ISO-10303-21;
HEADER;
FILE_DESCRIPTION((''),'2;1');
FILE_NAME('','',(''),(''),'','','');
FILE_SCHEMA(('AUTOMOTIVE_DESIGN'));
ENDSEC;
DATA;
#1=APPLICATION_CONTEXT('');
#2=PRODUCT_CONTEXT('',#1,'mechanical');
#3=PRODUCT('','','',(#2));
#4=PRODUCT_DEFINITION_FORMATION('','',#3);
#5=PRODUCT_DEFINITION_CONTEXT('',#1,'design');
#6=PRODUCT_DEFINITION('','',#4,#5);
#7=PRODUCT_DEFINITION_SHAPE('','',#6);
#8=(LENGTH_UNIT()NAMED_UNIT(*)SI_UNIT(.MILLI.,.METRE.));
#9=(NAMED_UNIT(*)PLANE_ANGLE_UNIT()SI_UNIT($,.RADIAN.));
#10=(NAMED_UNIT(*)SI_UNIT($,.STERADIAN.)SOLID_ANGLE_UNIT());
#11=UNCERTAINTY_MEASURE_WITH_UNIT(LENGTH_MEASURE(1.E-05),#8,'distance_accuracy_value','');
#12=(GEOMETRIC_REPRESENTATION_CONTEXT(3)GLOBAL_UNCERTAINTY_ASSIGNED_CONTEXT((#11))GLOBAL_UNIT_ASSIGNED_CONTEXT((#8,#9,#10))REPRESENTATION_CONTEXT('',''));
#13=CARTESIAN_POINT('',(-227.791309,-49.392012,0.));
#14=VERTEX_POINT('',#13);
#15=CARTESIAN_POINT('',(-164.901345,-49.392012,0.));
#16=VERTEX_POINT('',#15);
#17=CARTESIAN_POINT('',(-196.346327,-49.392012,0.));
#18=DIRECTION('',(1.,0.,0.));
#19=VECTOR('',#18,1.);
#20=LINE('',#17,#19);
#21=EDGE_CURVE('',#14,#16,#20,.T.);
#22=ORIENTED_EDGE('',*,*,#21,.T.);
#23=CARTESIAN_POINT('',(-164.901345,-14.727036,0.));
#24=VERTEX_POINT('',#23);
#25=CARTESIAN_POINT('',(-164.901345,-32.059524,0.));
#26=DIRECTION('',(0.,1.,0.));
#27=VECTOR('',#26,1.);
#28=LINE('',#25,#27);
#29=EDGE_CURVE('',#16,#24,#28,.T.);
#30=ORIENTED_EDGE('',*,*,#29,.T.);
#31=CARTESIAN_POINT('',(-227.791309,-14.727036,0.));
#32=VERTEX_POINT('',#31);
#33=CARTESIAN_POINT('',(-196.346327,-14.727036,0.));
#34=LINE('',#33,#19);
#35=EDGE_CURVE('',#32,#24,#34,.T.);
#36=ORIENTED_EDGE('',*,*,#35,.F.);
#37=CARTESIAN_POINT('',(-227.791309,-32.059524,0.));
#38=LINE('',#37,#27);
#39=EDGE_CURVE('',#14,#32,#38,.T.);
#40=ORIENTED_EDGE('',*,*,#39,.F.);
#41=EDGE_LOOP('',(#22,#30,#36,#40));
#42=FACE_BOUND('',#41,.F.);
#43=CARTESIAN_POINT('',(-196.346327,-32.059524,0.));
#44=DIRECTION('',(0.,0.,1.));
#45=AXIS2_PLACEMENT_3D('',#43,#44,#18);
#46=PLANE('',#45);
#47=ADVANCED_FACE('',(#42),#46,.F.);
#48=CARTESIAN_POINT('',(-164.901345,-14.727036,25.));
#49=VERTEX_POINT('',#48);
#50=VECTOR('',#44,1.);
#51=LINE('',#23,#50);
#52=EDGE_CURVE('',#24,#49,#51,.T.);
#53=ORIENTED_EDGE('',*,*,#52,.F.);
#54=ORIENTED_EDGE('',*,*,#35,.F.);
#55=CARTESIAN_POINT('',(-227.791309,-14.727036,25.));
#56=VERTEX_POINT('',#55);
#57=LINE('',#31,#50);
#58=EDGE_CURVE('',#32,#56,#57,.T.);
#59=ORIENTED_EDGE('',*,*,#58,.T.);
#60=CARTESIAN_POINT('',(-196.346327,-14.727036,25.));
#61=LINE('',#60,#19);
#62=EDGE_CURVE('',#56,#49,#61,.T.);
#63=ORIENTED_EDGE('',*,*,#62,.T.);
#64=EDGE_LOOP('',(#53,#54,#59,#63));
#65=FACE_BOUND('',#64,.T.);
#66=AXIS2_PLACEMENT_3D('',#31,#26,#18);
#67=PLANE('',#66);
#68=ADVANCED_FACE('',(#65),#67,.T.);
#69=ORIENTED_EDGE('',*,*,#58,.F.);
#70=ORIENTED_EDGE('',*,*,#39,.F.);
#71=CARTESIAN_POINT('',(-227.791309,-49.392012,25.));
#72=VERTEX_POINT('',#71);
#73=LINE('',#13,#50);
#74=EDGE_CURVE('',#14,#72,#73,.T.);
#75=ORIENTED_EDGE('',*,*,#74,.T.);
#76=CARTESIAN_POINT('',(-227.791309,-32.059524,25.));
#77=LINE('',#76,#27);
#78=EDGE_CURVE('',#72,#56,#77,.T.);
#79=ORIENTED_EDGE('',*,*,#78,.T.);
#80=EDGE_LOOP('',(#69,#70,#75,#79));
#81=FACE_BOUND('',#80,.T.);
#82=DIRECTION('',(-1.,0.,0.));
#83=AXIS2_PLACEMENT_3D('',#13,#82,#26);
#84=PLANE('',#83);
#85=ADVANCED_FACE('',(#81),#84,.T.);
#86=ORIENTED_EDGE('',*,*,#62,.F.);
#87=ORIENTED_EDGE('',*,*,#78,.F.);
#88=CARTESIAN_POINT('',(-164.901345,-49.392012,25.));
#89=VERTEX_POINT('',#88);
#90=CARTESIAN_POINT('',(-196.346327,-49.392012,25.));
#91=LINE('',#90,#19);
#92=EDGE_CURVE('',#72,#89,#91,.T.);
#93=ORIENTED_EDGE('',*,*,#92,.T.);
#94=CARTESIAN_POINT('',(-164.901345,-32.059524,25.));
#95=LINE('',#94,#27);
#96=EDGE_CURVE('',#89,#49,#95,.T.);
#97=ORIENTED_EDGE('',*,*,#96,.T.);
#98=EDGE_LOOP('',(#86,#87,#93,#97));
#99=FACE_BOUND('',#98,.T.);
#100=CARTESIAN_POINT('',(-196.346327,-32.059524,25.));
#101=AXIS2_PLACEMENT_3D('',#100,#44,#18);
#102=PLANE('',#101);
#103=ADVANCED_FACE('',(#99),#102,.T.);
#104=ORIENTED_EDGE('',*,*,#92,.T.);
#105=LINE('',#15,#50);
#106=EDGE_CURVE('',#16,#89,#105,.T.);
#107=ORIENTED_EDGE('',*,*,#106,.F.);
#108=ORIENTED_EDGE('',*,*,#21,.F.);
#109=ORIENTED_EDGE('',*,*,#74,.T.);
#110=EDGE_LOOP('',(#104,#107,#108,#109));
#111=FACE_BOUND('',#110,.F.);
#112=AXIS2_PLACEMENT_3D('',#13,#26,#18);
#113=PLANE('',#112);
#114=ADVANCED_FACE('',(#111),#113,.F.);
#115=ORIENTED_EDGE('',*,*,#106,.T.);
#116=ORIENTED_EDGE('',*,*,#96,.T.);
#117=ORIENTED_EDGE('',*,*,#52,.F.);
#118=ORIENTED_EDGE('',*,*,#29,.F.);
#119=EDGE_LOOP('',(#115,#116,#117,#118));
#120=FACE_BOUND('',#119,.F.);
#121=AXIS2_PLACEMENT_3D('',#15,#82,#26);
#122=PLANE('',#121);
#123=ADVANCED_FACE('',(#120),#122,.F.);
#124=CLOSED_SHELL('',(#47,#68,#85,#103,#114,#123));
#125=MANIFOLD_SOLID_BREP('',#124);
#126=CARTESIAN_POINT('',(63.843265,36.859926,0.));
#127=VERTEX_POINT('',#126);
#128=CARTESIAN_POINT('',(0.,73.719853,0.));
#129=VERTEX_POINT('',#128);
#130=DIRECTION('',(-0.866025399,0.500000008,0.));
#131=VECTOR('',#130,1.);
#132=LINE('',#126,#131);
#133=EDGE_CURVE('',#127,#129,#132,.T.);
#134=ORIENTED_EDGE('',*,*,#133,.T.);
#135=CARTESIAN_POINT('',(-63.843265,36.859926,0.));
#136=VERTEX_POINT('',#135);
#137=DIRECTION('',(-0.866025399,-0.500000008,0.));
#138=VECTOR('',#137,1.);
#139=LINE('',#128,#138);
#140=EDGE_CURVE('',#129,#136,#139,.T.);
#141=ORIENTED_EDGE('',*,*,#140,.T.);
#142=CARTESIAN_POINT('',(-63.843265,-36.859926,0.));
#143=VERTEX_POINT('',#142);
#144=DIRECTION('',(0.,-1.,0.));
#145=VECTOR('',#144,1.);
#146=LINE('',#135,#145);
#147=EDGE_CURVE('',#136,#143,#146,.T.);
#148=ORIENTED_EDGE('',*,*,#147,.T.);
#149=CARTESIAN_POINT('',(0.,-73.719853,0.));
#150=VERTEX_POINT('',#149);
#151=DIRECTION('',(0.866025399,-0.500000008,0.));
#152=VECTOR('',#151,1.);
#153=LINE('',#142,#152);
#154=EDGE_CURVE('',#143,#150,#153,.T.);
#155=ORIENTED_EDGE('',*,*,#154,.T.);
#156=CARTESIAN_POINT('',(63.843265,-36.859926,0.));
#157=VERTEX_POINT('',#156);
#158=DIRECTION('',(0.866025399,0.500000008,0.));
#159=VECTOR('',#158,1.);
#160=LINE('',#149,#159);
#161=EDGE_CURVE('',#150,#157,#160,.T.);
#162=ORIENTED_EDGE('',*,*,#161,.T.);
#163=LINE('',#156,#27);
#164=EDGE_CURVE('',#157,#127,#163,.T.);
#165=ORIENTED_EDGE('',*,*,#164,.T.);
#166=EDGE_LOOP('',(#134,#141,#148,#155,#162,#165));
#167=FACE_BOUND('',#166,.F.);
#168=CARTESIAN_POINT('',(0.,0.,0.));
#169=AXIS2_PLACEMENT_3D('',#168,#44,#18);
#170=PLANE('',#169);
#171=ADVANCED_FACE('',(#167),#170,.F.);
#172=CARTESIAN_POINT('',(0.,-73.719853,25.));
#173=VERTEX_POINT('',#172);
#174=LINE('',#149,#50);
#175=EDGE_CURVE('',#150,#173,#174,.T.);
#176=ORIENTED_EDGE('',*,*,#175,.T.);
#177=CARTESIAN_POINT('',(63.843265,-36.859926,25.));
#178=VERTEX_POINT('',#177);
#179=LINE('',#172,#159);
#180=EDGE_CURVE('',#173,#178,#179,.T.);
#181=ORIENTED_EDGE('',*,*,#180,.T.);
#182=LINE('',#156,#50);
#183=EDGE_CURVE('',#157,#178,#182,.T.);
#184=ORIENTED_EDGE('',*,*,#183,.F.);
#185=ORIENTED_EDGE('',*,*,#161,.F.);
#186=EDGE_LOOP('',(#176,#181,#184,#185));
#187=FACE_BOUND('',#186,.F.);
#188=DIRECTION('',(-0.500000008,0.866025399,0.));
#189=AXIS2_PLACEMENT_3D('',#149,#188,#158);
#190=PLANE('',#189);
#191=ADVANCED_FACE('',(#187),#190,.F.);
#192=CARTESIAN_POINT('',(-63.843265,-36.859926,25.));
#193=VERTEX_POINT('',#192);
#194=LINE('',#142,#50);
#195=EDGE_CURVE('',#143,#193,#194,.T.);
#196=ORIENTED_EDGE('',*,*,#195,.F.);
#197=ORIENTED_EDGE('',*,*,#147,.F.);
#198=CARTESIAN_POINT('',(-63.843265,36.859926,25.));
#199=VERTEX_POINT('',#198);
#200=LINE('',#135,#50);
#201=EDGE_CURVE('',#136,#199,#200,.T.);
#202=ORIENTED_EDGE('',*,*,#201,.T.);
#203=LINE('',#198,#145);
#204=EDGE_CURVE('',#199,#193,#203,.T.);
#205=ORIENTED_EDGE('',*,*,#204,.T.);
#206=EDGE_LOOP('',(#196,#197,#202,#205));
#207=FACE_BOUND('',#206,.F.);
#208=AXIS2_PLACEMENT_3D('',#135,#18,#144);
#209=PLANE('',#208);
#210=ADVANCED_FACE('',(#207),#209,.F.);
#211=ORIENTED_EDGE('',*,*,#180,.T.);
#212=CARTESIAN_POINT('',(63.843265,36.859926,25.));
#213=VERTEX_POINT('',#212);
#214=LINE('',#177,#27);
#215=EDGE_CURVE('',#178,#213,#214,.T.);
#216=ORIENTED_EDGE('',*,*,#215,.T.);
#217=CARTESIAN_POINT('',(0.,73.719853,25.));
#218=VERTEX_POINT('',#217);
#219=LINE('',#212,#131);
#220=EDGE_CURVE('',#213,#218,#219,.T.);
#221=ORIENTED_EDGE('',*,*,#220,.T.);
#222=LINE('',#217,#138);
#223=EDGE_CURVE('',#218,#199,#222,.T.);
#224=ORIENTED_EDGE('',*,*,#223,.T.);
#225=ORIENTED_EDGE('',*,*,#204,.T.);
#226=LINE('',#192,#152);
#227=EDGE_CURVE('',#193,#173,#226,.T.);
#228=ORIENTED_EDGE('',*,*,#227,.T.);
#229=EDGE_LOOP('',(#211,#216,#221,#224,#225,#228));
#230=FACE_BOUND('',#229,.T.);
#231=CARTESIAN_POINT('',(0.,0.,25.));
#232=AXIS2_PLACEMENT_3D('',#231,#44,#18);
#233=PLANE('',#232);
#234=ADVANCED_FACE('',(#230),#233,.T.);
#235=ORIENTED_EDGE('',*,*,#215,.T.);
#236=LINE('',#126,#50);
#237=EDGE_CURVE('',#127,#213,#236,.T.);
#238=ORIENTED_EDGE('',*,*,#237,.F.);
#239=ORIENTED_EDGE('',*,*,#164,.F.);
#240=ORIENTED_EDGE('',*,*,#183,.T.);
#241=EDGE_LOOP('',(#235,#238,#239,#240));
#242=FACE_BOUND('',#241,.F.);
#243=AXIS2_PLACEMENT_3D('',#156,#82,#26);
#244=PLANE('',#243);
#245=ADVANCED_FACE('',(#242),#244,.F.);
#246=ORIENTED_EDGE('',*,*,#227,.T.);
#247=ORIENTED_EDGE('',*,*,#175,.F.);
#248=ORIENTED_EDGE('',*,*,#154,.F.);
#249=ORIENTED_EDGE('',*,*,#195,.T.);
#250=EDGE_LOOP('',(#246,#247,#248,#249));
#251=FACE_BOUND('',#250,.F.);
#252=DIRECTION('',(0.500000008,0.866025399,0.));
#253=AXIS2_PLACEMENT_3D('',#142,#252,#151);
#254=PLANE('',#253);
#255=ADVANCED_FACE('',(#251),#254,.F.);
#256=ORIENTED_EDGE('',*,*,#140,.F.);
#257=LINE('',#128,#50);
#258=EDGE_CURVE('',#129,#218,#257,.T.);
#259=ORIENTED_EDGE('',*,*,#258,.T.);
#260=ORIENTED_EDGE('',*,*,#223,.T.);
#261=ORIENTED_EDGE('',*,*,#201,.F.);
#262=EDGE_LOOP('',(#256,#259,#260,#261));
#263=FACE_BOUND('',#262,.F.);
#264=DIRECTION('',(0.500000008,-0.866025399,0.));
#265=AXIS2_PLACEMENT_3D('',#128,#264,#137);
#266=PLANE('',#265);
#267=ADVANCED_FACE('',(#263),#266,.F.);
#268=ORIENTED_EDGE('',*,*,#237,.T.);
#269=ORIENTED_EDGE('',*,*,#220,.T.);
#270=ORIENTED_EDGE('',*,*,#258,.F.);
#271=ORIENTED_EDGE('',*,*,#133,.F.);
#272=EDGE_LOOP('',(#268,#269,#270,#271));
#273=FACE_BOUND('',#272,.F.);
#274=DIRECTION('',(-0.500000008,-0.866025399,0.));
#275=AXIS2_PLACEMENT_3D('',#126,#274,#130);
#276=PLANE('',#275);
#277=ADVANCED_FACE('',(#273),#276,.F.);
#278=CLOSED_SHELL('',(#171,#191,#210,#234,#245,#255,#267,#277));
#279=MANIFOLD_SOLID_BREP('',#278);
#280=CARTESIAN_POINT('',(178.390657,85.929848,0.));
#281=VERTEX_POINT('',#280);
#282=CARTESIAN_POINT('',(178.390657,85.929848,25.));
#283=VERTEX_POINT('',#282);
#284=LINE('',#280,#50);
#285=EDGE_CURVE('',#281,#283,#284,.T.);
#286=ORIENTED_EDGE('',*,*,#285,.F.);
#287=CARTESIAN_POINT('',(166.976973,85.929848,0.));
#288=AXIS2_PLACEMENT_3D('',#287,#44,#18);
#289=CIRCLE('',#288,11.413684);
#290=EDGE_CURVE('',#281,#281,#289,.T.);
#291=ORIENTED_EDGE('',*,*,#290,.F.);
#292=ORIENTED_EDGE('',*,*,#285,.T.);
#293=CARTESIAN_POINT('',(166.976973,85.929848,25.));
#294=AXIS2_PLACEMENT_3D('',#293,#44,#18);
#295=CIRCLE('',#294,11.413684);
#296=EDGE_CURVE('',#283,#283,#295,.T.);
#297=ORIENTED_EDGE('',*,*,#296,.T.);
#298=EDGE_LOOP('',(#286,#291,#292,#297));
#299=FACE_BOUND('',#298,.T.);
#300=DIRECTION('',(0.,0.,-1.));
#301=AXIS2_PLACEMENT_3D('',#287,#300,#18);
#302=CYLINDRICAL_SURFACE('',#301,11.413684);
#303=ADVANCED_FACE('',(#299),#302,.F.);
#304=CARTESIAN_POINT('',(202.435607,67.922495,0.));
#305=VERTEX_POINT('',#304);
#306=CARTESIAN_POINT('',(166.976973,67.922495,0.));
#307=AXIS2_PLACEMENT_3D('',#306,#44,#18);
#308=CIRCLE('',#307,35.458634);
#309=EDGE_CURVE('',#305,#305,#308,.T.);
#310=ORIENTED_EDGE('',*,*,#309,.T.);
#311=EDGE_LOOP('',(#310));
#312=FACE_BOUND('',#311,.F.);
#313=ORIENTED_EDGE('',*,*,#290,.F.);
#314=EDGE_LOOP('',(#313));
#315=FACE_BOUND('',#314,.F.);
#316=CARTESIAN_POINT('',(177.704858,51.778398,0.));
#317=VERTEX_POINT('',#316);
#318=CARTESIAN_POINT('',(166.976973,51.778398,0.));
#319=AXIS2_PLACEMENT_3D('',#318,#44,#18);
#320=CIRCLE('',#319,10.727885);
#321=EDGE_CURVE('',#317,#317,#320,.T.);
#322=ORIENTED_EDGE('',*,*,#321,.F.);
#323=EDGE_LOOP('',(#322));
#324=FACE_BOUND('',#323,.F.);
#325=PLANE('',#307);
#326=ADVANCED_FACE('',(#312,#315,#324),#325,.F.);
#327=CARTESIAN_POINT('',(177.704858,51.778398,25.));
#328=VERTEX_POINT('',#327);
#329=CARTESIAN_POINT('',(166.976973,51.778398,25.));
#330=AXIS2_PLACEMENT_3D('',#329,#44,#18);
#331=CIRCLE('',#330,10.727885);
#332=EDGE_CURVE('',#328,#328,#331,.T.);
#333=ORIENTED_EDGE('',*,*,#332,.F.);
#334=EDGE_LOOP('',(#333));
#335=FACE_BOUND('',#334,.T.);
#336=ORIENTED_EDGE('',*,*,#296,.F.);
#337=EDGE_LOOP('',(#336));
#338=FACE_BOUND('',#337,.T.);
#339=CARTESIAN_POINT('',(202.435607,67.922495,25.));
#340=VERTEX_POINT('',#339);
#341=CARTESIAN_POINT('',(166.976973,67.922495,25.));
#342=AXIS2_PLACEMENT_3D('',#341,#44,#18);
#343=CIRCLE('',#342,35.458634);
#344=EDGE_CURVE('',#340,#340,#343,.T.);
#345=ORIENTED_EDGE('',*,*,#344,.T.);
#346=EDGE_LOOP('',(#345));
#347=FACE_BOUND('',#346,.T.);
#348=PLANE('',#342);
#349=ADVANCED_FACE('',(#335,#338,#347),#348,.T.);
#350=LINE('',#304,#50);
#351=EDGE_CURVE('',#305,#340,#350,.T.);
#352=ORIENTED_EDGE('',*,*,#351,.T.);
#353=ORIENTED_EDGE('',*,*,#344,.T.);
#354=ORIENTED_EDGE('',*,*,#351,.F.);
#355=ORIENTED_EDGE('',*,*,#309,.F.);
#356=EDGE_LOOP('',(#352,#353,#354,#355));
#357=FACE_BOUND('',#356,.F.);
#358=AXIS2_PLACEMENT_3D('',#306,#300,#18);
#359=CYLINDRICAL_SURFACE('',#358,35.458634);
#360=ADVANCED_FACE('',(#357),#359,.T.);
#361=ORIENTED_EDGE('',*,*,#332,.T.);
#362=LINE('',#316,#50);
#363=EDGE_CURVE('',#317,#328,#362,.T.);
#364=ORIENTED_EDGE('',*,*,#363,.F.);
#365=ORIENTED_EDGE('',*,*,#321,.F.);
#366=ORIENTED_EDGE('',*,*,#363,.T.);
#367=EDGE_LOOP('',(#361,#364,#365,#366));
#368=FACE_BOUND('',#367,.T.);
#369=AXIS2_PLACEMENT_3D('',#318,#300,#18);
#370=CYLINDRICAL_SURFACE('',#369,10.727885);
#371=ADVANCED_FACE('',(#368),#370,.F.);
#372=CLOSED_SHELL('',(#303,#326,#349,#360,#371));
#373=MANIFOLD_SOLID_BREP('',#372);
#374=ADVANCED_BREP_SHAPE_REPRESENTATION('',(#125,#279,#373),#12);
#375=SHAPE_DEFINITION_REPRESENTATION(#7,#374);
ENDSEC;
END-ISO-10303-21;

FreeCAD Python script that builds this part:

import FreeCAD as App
import Part
import Sketcher
Q = App.Units.Quantity

doc = App.newDocument("Part")
body = doc.addObject("PartDesign::Body", "Body")

# Sketch on XY plane
sketch1 = body.newObject("Sketcher::SketchObject", "Sketch")
sketch1.AttachmentSupport = (doc.getObject("XY_Plane"), [""])
sketch1.MapMode = "FlatFace"
sketch1.addGeometry([
    Part.LineSegment(App.Vector(63.843265, -36.859926, 0), App.Vector(63.843265, 36.859926, 0)),  # 0
    Part.LineSegment(App.Vector(63.843265, 36.859926, 0), App.Vector(0, 73.719853, 0)),  # 1
    Part.LineSegment(App.Vector(0, 73.719853, 0), App.Vector(-63.843265, 36.859926, 0)),  # 2
    Part.LineSegment(App.Vector(-63.843265, 36.859926, 0), App.Vector(-63.843265, -36.859926, 0)),  # 3
    Part.LineSegment(App.Vector(-63.843265, -36.859926, 0), App.Vector(0, -73.719853, 0)),  # 4
    Part.LineSegment(App.Vector(0, -73.719853, 0), App.Vector(63.843265, -36.859926, 0)),  # 5
], False)
sketch1.addConstraint([
    Sketcher.Constraint("Coincident", 0, 2, 1, 1),
    Sketcher.Constraint("Coincident", 1, 2, 2, 1),
    Sketcher.Constraint("Coincident", 2, 2, 3, 1),
    Sketcher.Constraint("Coincident", 3, 2, 4, 1),
    Sketcher.Constraint("Coincident", 4, 2, 5, 1),
    Sketcher.Constraint("Coincident", 5, 2, 0, 1),
    Sketcher.Constraint("Vertical", 0),
    Sketcher.Constraint("Vertical", 3),
    Sketcher.Constraint("Symmetric", 0, 2, 3, 2, -1, 1),
    Sketcher.Constraint("Symmetric", 1, 2, 4, 2, -1, 1),
    Sketcher.Constraint("PointOnObject", 1, 2, -2),
    Sketcher.Constraint("Parallel", 2, 5),
    Sketcher.Constraint("Horizontal", 0, 2, 2, 2),
    Sketcher.Constraint("Angle", 1, Q("149.999999 deg")),
    Sketcher.Constraint("DistanceY", 0, 1, 0, 2, 73.719852),
    Sketcher.Constraint("DistanceX", 2, 2, 0, 2, 127.68653),
])
pad1 = body.newObject("PartDesign::Pad", "Pad")
pad1.Profile = sketch1
pad1.Length = 25
body2 = doc.addObject("PartDesign::Body", "Body001")

# Sketch on XY plane
sketch2 = body2.newObject("Sketcher::SketchObject", "Sketch001")
sketch2.AttachmentSupport = (doc.getObject("XY_Plane001"), [""])
sketch2.MapMode = "FlatFace"
sketch2.addGeometry([
    Part.Circle(App.Vector(166.976973, 67.922495, 0), App.Vector(0, 0, 1), 35.458634),
    Part.Circle(App.Vector(166.976973, 51.778398, 0), App.Vector(0, 0, 1), 10.727885),
    Part.Circle(App.Vector(166.976973, 85.929848, 0), App.Vector(0, 0, 1), 11.413684),
], False)
sketch2.addConstraint([
    Sketcher.Constraint("Vertical", 0, 3, 1, 3),
    Sketcher.Constraint("Vertical", 1, 3, 2, 3),
    Sketcher.Constraint("Diameter", 0, 70.917268),
    Sketcher.Constraint("Diameter", 1, 21.45577),
    Sketcher.Constraint("Diameter", 2, 22.827368),
    Sketcher.Constraint("DistanceY", -1, 1, 1, 3, 51.778398),
    Sketcher.Constraint("DistanceY", -1, 1, 2, 3, 85.929848),
    Sketcher.Constraint("DistanceX", -1, 1, 0, 3, 166.976973),
    Sketcher.Constraint("DistanceY", -1, 1, 0, 3, 67.922495),
])
pad2 = body2.newObject("PartDesign::Pad", "Pad001")
pad2.Profile = sketch2
pad2.Length = 25
body3 = doc.addObject("PartDesign::Body", "Body002")

# Sketch on XY plane
sketch3 = body3.newObject("Sketcher::SketchObject", "Sketch002")
sketch3.AttachmentSupport = (doc.getObject("XY_Plane002"), [""])
sketch3.MapMode = "FlatFace"
sketch3.addGeometry([
    Part.LineSegment(App.Vector(-227.791309, -14.727036, 0), App.Vector(-227.791309, -49.392012, 0)),
    Part.LineSegment(App.Vector(-227.791309, -49.392012, 0), App.Vector(-164.901345, -49.392012, 0)),
    Part.LineSegment(App.Vector(-164.901345, -49.392012, 0), App.Vector(-164.901345, -14.727036, 0)),
    Part.LineSegment(App.Vector(-164.901345, -14.727036, 0), App.Vector(-227.791309, -14.727036, 0)),
], False)
sketch3.addConstraint([
    Sketcher.Constraint("Coincident", 0, 2, 1, 1),
    Sketcher.Constraint("Coincident", 1, 2, 2, 1),
    Sketcher.Constraint("Coincident", 2, 2, 3, 1),
    Sketcher.Constraint("Coincident", 3, 2, 0, 1),
    Sketcher.Constraint("Vertical", 0),
    Sketcher.Constraint("Horizontal", 1),
    Sketcher.Constraint("Vertical", 2),
    Sketcher.Constraint("Horizontal", 3),
    Sketcher.Constraint("DistanceX", 1, 1, 1, 2, 62.889963),
    Sketcher.Constraint("DistanceY", 0, 2, 0, 1, 34.664976),
    Sketcher.Constraint("DistanceX", 0, 2, -1, 1, 227.791309),
    Sketcher.Constraint("DistanceY", 0, 2, -1, 1, 49.392012),
])
pad3 = body3.newObject("PartDesign::Pad", "Pad002")
pad3.Profile = sketch3
pad3.Length = 25

doc.recompute()
